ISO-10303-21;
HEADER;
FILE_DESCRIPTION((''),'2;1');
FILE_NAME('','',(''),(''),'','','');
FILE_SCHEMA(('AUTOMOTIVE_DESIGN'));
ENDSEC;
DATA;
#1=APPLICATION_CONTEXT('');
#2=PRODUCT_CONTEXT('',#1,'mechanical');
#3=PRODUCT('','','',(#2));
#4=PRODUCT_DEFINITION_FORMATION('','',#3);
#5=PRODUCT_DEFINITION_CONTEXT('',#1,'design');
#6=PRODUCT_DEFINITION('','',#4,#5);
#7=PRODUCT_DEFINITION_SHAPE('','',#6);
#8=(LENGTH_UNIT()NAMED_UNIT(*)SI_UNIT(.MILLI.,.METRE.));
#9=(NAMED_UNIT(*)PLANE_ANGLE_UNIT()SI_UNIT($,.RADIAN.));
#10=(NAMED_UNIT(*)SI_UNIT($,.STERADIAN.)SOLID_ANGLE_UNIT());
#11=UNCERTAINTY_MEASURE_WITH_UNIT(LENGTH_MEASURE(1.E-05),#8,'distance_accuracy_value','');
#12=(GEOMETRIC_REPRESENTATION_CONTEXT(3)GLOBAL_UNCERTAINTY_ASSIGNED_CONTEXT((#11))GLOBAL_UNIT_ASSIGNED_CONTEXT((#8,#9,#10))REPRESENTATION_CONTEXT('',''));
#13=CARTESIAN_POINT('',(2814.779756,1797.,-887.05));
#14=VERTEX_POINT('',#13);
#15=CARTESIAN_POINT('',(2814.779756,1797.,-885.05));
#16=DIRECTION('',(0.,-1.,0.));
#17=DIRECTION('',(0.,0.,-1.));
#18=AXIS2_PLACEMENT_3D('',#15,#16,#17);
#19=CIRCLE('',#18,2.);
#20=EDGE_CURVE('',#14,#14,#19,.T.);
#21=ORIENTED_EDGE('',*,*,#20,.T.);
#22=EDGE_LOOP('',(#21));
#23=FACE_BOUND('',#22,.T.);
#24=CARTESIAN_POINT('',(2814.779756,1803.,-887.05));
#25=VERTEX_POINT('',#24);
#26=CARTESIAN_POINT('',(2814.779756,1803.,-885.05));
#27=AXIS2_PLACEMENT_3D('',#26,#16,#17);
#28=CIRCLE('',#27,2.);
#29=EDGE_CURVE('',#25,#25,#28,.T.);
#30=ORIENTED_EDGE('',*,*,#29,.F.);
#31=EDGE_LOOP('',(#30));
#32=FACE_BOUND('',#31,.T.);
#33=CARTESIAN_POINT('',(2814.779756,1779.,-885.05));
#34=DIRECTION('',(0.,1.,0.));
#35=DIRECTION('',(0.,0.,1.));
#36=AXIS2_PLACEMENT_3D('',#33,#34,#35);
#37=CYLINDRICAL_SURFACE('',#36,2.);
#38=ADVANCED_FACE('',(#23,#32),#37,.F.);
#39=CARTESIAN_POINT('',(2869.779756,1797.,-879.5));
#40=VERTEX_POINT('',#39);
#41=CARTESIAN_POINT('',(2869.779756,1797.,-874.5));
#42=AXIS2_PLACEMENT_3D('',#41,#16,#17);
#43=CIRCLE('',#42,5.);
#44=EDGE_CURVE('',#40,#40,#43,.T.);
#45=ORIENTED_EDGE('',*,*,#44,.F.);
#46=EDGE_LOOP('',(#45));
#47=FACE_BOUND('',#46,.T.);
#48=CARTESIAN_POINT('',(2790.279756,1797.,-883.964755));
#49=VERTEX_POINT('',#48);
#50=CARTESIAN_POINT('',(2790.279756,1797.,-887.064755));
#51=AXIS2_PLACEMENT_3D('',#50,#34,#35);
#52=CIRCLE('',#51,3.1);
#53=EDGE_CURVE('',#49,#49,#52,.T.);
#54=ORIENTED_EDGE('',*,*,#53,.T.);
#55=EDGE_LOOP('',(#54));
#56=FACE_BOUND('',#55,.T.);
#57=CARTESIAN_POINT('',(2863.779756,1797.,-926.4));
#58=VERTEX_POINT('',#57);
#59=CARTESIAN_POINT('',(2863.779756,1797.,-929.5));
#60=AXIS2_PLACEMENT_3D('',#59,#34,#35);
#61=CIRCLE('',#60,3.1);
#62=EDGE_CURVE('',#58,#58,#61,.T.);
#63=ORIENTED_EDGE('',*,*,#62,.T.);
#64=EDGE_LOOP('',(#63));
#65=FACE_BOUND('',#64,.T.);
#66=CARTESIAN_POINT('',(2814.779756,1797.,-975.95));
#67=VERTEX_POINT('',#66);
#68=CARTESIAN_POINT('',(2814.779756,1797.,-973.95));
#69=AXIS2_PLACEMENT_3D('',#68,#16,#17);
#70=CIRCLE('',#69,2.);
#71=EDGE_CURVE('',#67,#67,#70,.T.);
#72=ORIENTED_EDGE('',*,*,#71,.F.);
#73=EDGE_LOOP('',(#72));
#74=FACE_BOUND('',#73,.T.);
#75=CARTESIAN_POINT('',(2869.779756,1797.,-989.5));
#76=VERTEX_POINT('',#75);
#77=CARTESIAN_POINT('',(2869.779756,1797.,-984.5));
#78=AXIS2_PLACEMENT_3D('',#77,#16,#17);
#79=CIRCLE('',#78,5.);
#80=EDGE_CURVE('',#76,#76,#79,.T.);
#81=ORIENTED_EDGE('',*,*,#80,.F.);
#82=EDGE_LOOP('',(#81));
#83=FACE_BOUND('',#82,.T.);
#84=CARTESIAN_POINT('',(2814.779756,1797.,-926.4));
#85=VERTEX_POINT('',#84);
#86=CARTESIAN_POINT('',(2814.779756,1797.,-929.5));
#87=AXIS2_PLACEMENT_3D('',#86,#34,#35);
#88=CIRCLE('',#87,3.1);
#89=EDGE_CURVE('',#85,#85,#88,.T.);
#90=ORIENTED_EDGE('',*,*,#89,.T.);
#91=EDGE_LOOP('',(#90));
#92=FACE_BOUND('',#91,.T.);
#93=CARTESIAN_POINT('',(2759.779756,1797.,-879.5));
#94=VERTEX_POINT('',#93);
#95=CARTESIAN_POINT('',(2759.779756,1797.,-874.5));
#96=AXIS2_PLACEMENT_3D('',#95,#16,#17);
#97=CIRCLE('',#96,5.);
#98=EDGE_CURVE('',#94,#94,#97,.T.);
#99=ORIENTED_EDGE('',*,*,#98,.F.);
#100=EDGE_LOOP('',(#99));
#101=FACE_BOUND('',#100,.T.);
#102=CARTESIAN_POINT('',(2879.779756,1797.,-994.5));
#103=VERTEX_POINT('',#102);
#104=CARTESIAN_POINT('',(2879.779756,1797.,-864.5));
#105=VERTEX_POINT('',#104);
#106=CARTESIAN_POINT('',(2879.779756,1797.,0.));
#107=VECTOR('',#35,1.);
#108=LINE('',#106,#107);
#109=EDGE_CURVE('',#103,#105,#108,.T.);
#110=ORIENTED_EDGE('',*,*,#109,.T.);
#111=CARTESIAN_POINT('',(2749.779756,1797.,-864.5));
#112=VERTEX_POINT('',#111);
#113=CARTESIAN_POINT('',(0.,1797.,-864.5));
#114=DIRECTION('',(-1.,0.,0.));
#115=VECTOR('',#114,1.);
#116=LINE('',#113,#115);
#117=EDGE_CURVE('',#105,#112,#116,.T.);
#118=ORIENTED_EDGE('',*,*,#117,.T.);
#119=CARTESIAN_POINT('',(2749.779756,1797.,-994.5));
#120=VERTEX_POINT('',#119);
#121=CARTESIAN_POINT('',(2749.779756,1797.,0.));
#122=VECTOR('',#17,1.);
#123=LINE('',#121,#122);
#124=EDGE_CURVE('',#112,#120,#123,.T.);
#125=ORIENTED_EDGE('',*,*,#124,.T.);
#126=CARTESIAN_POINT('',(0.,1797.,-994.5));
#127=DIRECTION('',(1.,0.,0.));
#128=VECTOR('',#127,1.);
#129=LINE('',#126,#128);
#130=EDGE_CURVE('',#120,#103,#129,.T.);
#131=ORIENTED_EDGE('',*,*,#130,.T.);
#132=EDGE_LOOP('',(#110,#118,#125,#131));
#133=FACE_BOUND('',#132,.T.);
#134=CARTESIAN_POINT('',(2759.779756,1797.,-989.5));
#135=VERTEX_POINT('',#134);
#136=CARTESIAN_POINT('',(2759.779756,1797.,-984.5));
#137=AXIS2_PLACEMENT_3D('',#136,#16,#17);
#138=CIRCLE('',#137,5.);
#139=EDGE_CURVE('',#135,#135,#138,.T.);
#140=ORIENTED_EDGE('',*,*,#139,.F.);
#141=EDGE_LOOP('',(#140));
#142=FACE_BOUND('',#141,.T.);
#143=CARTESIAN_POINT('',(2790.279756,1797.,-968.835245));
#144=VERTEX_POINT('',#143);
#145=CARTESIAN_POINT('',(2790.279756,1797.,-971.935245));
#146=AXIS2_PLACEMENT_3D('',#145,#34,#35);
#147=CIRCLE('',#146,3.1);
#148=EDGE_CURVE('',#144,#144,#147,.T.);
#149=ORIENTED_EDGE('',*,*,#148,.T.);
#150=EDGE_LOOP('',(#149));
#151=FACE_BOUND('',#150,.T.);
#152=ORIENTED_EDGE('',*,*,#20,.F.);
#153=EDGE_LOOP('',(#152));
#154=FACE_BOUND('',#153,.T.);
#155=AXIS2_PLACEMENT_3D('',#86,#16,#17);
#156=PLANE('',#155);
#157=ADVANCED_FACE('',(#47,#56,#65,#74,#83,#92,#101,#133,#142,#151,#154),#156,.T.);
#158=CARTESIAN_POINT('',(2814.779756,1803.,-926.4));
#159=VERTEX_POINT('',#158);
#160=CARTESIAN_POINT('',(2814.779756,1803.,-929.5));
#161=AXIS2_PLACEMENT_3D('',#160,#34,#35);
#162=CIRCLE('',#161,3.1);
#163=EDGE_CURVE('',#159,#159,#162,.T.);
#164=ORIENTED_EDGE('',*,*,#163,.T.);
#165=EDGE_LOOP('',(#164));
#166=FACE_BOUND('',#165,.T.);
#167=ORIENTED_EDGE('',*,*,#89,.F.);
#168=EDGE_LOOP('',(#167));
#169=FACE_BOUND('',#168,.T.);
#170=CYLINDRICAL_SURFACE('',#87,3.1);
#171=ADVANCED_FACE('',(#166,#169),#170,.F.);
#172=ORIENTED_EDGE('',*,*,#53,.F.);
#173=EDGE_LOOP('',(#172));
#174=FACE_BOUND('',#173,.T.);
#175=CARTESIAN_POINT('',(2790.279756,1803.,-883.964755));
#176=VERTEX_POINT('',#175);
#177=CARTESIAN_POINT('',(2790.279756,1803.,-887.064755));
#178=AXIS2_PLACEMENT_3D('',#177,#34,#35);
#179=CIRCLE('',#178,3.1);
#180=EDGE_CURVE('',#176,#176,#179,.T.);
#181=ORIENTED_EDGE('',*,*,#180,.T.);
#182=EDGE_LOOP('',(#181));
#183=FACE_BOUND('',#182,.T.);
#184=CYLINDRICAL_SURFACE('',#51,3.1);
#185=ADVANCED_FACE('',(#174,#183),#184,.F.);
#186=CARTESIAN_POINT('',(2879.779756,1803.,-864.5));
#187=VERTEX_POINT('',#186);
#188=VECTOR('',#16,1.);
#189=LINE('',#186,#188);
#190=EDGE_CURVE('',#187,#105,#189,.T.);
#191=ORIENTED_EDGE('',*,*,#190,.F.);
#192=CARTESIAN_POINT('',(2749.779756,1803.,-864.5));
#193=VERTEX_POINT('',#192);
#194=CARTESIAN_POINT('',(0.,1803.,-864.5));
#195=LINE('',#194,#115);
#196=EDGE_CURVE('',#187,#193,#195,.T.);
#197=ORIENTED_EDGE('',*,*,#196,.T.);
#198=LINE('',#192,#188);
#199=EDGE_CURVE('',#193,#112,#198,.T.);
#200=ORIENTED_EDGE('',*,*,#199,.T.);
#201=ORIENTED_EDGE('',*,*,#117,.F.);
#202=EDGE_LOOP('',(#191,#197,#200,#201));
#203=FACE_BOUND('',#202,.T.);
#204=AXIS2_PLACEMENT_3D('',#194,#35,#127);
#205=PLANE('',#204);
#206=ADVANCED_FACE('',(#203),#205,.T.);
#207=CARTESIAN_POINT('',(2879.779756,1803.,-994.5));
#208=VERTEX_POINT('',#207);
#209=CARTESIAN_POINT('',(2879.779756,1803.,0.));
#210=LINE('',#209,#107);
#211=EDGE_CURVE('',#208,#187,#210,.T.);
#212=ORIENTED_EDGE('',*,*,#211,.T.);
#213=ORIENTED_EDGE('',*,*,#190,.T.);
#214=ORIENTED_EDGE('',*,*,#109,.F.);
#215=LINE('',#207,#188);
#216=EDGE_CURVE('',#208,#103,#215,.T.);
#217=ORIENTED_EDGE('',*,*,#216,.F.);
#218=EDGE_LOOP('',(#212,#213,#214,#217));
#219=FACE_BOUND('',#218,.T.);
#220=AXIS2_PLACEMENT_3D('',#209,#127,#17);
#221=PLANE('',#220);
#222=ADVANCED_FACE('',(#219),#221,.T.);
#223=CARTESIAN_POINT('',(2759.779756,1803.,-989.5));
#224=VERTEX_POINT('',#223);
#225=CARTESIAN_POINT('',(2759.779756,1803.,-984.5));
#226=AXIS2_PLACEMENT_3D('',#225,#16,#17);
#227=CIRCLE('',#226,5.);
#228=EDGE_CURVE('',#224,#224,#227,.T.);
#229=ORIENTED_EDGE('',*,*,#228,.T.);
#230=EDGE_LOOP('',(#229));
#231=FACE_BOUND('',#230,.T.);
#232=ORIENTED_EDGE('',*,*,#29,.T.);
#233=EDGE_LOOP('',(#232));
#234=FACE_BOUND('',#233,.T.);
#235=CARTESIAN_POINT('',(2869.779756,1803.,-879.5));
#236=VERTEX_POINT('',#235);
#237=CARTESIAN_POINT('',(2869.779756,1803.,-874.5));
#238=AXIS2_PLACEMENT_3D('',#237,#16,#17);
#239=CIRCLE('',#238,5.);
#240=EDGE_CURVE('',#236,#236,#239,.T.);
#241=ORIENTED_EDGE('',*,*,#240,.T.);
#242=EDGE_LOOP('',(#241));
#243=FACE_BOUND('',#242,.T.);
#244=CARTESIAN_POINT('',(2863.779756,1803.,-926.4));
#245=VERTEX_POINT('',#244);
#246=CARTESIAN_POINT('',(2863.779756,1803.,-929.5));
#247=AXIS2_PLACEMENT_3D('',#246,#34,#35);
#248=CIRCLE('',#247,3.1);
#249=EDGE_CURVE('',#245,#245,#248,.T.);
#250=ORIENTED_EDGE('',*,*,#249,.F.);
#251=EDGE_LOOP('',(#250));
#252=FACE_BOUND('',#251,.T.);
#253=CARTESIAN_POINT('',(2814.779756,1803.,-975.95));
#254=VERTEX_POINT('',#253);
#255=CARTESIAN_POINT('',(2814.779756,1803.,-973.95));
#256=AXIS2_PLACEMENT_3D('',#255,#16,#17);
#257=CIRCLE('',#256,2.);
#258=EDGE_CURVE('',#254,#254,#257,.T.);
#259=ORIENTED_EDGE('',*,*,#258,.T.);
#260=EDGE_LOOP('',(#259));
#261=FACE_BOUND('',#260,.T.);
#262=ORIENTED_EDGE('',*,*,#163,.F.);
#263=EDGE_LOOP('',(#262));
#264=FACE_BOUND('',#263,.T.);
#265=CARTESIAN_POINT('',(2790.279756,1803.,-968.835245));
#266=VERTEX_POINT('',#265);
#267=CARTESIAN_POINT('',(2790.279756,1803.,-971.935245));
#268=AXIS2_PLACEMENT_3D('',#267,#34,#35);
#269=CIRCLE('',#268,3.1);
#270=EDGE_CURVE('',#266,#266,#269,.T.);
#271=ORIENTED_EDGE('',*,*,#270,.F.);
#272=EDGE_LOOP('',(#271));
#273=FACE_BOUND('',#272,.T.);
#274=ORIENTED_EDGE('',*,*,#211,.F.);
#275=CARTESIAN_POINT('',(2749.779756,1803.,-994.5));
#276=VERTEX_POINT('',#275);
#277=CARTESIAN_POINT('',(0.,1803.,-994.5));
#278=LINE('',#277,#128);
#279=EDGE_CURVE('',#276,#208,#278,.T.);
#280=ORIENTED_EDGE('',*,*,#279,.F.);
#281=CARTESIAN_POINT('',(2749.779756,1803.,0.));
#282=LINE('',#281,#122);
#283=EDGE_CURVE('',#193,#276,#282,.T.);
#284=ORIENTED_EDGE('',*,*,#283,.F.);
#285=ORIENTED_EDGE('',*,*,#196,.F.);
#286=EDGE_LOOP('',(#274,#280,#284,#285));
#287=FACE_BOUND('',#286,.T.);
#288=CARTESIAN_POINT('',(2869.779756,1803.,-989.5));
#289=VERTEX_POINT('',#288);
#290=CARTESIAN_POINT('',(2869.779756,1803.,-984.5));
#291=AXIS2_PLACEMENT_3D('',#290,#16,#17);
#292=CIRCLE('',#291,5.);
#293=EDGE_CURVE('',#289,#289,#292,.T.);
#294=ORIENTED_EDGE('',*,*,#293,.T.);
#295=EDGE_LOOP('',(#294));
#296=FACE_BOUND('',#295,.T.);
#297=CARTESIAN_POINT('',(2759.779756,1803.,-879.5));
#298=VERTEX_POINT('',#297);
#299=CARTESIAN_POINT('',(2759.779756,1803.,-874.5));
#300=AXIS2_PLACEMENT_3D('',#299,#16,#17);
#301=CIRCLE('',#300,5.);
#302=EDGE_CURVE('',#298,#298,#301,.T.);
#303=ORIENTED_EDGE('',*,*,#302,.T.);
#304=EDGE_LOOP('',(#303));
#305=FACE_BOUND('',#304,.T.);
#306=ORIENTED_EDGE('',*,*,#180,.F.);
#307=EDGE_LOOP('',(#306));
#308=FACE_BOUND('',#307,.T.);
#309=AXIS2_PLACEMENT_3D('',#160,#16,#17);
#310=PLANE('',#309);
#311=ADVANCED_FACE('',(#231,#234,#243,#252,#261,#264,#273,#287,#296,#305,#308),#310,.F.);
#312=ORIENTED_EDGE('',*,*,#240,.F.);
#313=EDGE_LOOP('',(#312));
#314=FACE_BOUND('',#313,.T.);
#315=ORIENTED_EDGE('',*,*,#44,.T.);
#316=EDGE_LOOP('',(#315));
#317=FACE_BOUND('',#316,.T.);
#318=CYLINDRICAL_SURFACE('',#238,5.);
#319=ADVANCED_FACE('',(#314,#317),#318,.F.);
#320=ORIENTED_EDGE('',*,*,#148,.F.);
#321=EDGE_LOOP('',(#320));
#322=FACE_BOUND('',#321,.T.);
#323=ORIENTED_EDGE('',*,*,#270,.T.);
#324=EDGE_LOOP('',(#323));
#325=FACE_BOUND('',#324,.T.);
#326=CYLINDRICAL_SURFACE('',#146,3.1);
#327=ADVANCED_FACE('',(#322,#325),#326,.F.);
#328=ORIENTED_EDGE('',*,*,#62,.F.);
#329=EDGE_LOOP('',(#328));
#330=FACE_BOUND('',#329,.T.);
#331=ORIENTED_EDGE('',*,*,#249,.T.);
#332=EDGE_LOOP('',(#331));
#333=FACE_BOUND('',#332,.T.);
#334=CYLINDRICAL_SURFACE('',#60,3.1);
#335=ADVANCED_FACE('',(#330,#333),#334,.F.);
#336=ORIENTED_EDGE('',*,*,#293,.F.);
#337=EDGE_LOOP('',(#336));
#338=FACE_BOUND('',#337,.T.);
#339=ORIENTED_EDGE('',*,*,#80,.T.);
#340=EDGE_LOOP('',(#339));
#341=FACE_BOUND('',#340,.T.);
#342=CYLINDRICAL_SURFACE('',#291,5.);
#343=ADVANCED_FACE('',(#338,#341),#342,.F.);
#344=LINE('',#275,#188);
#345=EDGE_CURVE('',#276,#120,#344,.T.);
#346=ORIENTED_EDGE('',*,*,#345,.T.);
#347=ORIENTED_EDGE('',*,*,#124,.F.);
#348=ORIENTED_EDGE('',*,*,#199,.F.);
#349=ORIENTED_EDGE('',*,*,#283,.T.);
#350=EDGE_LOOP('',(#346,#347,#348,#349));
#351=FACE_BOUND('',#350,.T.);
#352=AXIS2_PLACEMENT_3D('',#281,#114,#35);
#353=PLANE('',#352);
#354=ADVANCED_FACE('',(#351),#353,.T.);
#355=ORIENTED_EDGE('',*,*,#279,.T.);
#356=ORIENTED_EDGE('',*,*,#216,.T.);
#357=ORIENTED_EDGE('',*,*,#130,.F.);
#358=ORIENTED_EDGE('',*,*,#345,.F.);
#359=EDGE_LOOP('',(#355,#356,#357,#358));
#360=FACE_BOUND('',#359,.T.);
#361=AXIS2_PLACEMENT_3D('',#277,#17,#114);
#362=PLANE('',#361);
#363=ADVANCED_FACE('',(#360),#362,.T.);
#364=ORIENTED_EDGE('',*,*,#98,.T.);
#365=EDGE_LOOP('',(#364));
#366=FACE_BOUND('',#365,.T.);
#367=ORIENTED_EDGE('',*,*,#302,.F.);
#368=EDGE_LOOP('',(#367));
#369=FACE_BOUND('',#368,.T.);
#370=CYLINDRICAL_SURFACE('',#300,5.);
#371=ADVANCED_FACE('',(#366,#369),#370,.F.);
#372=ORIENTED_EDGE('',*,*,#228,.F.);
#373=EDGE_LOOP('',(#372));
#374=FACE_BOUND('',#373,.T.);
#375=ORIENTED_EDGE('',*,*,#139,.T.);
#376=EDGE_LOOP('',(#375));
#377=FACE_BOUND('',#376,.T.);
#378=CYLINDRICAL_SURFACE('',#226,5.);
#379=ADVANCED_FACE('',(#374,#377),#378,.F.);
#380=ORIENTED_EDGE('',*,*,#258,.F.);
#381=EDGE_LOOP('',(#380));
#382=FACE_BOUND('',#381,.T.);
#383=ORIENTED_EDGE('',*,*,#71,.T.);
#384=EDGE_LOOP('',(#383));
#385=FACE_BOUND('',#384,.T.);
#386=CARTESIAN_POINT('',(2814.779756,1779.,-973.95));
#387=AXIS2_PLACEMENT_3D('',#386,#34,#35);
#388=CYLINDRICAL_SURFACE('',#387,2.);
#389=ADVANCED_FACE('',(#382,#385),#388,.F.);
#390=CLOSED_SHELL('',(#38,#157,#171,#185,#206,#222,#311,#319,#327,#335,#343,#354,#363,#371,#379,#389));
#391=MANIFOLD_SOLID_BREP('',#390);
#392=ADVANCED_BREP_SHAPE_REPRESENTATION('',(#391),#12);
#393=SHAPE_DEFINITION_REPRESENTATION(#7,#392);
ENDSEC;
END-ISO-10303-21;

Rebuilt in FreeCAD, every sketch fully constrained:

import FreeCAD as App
import Part
import Sketcher
from FreeCAD import Vector
Q = App.Units.Quantity


def add_polygon(sketch, points):
    """Adds a closed chain of lines whose ends are joined by coincident constraints."""
    first, n = sketch.GeometryCount, len(points)
    for a, b in zip(points, points[1:] + points[:1]):
        sketch.addGeometry(Part.LineSegment(App.Vector(*a, 0), App.Vector(*b, 0)), False)
    for i in range(n):
        sketch.addConstraint(Sketcher.Constraint("Coincident", first + i, 2, first + (i + 1) % n, 1))

doc = App.newDocument("Part")
body = doc.addObject("PartDesign::Body", "Body")

# Sketch on XZ plane
sketch1 = body.newObject("Sketcher::SketchObject", "Sketch")
sketch1.AttachmentSupport = (doc.getObject("XZ_Plane"), [""])
sketch1.MapMode = "FlatFace"
sketch1.AttachmentOffset = App.Placement(Vector(0, 0, -1803), App.Rotation())
sketch1.addGeometry([
    Part.Circle(Vector(2814.8, -929.5, 0), Vector(0, 0, 1), 58),
    Part.Circle(Vector(2814.8, -929.5, 0), Vector(0, 0, 1), 3),
], False)
sketch1.addConstraint([
    Sketcher.Constraint("Coincident", 1, 3, 0, 3),
    Sketcher.Constraint("Diameter", 0, Q("116 mm")),
    Sketcher.Constraint("Diameter", 1, Q("6 mm")),
    Sketcher.Constraint("DistanceY", 0, 3, -1, 1, Q("929.5 mm")),
    Sketcher.Constraint("DistanceX", -1, 1, 0, 3, Q("2814.779756 mm")),
])
pad1 = body.newObject("PartDesign::Pad", "Pad")
pad1.Profile = sketch1
pad1.Length = 6

# Sketch on XZ plane
sketch2 = body.newObject("Sketcher::SketchObject", "Sketch001")
sketch2.AttachmentSupport = (doc.getObject("XZ_Plane"), [""])
sketch2.MapMode = "FlatFace"
sketch2.AttachmentOffset = App.Placement(Vector(0, 0, -1797), App.Rotation())
sketch2.addGeometry([
    Part.Circle(Vector(2814.8, -885, 0), Vector(0, 0, 1), 2),
    Part.Circle(Vector(2814.8, -974, 0), Vector(0, 0, 1), 2),
], False)
sketch2.addConstraint([
    Sketcher.Constraint("Equal", 0, 1),
    Sketcher.Constraint("Vertical", 0, 3, 1, 3),
    Sketcher.Constraint("Diameter", 0, Q("4 mm")),
    Sketcher.Constraint("DistanceY", 1, 3, 0, 3, Q("88.9 mm")),
    Sketcher.Constraint("DistanceY", 0, 3, -1, 1, Q("885.05 mm")),
    Sketcher.Constraint("DistanceX", -1, 1, 0, 3, Q("2814.779756 mm")),
])
pad2 = body.newObject("PartDesign::Pad", "Pad001")
pad2.Profile = sketch2
pad2.Length = 12
pad2.Reversed = True

# Sketch on XZ plane
sketch3 = body.newObject("Sketcher::SketchObject", "Sketch002")
sketch3.AttachmentSupport = (doc.getObject("XZ_Plane"), [""])
sketch3.MapMode = "FlatFace"
sketch3.AttachmentOffset = App.Placement(Vector(0, 0, -1803), App.Rotation())
add_polygon(sketch3, [(2750, -864), (2750, -994), (2880, -994), (2880, -864)])  # lines 0-3
sketch3.addGeometry(Part.Circle(Vector(2760, -984, 0), Vector(0, 0, 1), 5), False)  # 4
sketch3.addGeometry(Part.Circle(Vector(2870, -984, 0), Vector(0, 0, 1), 5), False)  # 5
sketch3.addGeometry(Part.Circle(Vector(2760, -874, 0), Vector(0, 0, 1), 5), False)  # 6
sketch3.addGeometry(Part.Circle(Vector(2815, -930, 0), Vector(0, 0, 1), 58), False)  # 7
sketch3.addGeometry(Part.Circle(Vector(2870, -874, 0), Vector(0, 0, 1), 5), False)  # 8
sketch3.addConstraint([
    Sketcher.Constraint("Vertical", 0),
    Sketcher.Constraint("Horizontal", 1),
    Sketcher.Constraint("Vertical", 2),
    Sketcher.Constraint("Horizontal", 3),
    Sketcher.Constraint("Equal", 4, 5),
    Sketcher.Constraint("Equal", 5, 6),
    Sketcher.Constraint("Equal", 6, 8),
    Sketcher.Constraint("Horizontal", 4, 3, 5, 3),
    Sketcher.Constraint("Horizontal", 6, 3, 8, 3),
    Sketcher.Constraint("Vertical", 4, 3, 6, 3),
    Sketcher.Constraint("Vertical", 5, 3, 8, 3),
    Sketcher.Constraint("Equal", 3, 0),
    Sketcher.Constraint("Diameter", 4, Q("10 mm")),
    Sketcher.Constraint("Diameter", 7, Q("116 mm")),
    Sketcher.Constraint("DistanceX", 1, 1, 1, 2, Q("130 mm")),
    Sketcher.Constraint("DistanceX", 4, 3, 5, 3, Q("110 mm")),
    Sketcher.Constraint("DistanceY", 4, 3, 6, 3, Q("110 mm")),
    Sketcher.Constraint("DistanceX", 4, 3, 7, 3, Q("55 mm")),
    Sketcher.Constraint("DistanceY", 4, 3, 7, 3, Q("55 mm")),
    Sketcher.Constraint("DistanceX", 0, 2, 4, 3, Q("10 mm")),
    Sketcher.Constraint("DistanceY", 0, 2, 4, 3, Q("10 mm")),
    Sketcher.Constraint("DistanceY", 4, 3, -1, 1, Q("984.5 mm")),
    Sketcher.Constraint("DistanceX", -1, 1, 4, 3, Q("2759.779756 mm")),
])
pad3 = body.newObject("PartDesign::Pad", "Pad002")
pad3.Profile = sketch3
pad3.Length = 6

# Sketch on XZ plane
sketch4 = body.newObject("Sketcher::SketchObject", "Sketch003")
sketch4.AttachmentSupport = (doc.getObject("XZ_Plane"), [""])
sketch4.MapMode = "FlatFace"
sketch4.AttachmentOffset = App.Placement(Vector(0, 0, -1779), App.Rotation())
sketch4.addGeometry(Part.Circle(Vector(2814.8, -974, 0), Vector(0, 0, 1), 2), False)
sketch4.addConstraint([
    Sketcher.Constraint("Diameter", 0, Q("4 mm")),
    Sketcher.Constraint("DistanceY", 0, 3, -1, 1, Q("973.95 mm")),
    Sketcher.Constraint("DistanceX", -1, 1, 0, 3, Q("2814.779756 mm")),
])
pocket1 = body.newObject("PartDesign::Pocket", "Pocket")
pocket1.Profile = sketch4
pocket1.Length = 30

# Sketch on XZ plane
sketch5 = body.newObject("Sketcher::SketchObject", "Sketch004")
sketch5.AttachmentSupport = (doc.getObject("XZ_Plane"), [""])
sketch5.MapMode = "FlatFace"
sketch5.AttachmentOffset = App.Placement(Vector(0, 0, -1779), App.Rotation())
sketch5.addGeometry(Part.Circle(Vector(2814.8, -885, 0), Vector(0, 0, 1), 2), False)
sketch5.addConstraint([
    Sketcher.Constraint("Diameter", 0, Q("4 mm")),
    Sketcher.Constraint("DistanceY", 0, 3, -1, 1, Q("885.05 mm")),
    Sketcher.Constraint("DistanceX", -1, 1, 0, 3, Q("2814.779756 mm")),
])
pocket2 = body.newObject("PartDesign::Pocket", "Pocket001")
pocket2.Profile = sketch5
pocket2.Length = 30

# Sketch on XZ plane
sketch6 = body.newObject("Sketcher::SketchObject", "Sketch005")
sketch6.AttachmentSupport = (doc.getObject("XZ_Plane"), [""])
sketch6.MapMode = "FlatFace"
sketch6.AttachmentOffset = App.Placement(Vector(0, 0, -1803), App.Rotation())
sketch6.addGeometry(Part.Circle(Vector(2814.8, -929.5, 0), Vector(0, 0, 1), 3.1), False)
sketch6.addConstraint([
    Sketcher.Constraint("Diameter", 0, Q("6.2 mm")),
    Sketcher.Constraint("DistanceY", 0, 3, -1, 1, Q("929.5 mm")),
    Sketcher.Constraint("DistanceX", -1, 1, 0, 3, Q("2814.779756 mm")),
])
pocket3 = body.newObject("PartDesign::Pocket", "Pocket002")
pocket3.Profile = sketch6
pocket3.Length = 6
pocket3.Reversed = True

# Sketch on XZ plane
sketch7 = body.newObject("Sketcher::SketchObject", "Sketch006")
sketch7.AttachmentSupport = (doc.getObject("XZ_Plane"), [""])
sketch7.MapMode = "FlatFace"
sketch7.AttachmentOffset = App.Placement(Vector(0, 0, -1803), App.Rotation())
sketch7.addGeometry([
    Part.Circle(Vector(2863.8, -929.5, 0), Vector(0, 0, 1), 3.1),
    Part.Circle(Vector(2790.3, -887.1, 0), Vector(0, 0, 1), 3.1),
    Part.Circle(Vector(2790.3, -971.9, 0), Vector(0, 0, 1), 3.1),
], False)
sketch7.addConstraint([
    Sketcher.Constraint("Equal", 0, 1),
    Sketcher.Constraint("Equal", 1, 2),
    Sketcher.Constraint("Vertical", 1, 3, 2, 3),
    Sketcher.Constraint("Diameter", 0, Q("6.2 mm")),
    Sketcher.Constraint("DistanceY", 0, 3, -1, 1, Q("929.5 mm")),
    Sketcher.Constraint("DistanceX", 1, 3, 0, 3, Q("73.5 mm")),
    Sketcher.Constraint("DistanceY", 2, 3, 1, 3, Q("84.87049 mm")),
    Sketcher.Constraint("DistanceX", -1, 1, 0, 3, Q("2863.779756 mm")),
    Sketcher.Constraint("DistanceY", 1, 3, -1, 1, Q("887.064755 mm")),
])
pocket4 = body.newObject("PartDesign::Pocket", "Pocket003")
pocket4.Profile = sketch7
pocket4.Length = 6
pocket4.Reversed = True

doc.recompute()
